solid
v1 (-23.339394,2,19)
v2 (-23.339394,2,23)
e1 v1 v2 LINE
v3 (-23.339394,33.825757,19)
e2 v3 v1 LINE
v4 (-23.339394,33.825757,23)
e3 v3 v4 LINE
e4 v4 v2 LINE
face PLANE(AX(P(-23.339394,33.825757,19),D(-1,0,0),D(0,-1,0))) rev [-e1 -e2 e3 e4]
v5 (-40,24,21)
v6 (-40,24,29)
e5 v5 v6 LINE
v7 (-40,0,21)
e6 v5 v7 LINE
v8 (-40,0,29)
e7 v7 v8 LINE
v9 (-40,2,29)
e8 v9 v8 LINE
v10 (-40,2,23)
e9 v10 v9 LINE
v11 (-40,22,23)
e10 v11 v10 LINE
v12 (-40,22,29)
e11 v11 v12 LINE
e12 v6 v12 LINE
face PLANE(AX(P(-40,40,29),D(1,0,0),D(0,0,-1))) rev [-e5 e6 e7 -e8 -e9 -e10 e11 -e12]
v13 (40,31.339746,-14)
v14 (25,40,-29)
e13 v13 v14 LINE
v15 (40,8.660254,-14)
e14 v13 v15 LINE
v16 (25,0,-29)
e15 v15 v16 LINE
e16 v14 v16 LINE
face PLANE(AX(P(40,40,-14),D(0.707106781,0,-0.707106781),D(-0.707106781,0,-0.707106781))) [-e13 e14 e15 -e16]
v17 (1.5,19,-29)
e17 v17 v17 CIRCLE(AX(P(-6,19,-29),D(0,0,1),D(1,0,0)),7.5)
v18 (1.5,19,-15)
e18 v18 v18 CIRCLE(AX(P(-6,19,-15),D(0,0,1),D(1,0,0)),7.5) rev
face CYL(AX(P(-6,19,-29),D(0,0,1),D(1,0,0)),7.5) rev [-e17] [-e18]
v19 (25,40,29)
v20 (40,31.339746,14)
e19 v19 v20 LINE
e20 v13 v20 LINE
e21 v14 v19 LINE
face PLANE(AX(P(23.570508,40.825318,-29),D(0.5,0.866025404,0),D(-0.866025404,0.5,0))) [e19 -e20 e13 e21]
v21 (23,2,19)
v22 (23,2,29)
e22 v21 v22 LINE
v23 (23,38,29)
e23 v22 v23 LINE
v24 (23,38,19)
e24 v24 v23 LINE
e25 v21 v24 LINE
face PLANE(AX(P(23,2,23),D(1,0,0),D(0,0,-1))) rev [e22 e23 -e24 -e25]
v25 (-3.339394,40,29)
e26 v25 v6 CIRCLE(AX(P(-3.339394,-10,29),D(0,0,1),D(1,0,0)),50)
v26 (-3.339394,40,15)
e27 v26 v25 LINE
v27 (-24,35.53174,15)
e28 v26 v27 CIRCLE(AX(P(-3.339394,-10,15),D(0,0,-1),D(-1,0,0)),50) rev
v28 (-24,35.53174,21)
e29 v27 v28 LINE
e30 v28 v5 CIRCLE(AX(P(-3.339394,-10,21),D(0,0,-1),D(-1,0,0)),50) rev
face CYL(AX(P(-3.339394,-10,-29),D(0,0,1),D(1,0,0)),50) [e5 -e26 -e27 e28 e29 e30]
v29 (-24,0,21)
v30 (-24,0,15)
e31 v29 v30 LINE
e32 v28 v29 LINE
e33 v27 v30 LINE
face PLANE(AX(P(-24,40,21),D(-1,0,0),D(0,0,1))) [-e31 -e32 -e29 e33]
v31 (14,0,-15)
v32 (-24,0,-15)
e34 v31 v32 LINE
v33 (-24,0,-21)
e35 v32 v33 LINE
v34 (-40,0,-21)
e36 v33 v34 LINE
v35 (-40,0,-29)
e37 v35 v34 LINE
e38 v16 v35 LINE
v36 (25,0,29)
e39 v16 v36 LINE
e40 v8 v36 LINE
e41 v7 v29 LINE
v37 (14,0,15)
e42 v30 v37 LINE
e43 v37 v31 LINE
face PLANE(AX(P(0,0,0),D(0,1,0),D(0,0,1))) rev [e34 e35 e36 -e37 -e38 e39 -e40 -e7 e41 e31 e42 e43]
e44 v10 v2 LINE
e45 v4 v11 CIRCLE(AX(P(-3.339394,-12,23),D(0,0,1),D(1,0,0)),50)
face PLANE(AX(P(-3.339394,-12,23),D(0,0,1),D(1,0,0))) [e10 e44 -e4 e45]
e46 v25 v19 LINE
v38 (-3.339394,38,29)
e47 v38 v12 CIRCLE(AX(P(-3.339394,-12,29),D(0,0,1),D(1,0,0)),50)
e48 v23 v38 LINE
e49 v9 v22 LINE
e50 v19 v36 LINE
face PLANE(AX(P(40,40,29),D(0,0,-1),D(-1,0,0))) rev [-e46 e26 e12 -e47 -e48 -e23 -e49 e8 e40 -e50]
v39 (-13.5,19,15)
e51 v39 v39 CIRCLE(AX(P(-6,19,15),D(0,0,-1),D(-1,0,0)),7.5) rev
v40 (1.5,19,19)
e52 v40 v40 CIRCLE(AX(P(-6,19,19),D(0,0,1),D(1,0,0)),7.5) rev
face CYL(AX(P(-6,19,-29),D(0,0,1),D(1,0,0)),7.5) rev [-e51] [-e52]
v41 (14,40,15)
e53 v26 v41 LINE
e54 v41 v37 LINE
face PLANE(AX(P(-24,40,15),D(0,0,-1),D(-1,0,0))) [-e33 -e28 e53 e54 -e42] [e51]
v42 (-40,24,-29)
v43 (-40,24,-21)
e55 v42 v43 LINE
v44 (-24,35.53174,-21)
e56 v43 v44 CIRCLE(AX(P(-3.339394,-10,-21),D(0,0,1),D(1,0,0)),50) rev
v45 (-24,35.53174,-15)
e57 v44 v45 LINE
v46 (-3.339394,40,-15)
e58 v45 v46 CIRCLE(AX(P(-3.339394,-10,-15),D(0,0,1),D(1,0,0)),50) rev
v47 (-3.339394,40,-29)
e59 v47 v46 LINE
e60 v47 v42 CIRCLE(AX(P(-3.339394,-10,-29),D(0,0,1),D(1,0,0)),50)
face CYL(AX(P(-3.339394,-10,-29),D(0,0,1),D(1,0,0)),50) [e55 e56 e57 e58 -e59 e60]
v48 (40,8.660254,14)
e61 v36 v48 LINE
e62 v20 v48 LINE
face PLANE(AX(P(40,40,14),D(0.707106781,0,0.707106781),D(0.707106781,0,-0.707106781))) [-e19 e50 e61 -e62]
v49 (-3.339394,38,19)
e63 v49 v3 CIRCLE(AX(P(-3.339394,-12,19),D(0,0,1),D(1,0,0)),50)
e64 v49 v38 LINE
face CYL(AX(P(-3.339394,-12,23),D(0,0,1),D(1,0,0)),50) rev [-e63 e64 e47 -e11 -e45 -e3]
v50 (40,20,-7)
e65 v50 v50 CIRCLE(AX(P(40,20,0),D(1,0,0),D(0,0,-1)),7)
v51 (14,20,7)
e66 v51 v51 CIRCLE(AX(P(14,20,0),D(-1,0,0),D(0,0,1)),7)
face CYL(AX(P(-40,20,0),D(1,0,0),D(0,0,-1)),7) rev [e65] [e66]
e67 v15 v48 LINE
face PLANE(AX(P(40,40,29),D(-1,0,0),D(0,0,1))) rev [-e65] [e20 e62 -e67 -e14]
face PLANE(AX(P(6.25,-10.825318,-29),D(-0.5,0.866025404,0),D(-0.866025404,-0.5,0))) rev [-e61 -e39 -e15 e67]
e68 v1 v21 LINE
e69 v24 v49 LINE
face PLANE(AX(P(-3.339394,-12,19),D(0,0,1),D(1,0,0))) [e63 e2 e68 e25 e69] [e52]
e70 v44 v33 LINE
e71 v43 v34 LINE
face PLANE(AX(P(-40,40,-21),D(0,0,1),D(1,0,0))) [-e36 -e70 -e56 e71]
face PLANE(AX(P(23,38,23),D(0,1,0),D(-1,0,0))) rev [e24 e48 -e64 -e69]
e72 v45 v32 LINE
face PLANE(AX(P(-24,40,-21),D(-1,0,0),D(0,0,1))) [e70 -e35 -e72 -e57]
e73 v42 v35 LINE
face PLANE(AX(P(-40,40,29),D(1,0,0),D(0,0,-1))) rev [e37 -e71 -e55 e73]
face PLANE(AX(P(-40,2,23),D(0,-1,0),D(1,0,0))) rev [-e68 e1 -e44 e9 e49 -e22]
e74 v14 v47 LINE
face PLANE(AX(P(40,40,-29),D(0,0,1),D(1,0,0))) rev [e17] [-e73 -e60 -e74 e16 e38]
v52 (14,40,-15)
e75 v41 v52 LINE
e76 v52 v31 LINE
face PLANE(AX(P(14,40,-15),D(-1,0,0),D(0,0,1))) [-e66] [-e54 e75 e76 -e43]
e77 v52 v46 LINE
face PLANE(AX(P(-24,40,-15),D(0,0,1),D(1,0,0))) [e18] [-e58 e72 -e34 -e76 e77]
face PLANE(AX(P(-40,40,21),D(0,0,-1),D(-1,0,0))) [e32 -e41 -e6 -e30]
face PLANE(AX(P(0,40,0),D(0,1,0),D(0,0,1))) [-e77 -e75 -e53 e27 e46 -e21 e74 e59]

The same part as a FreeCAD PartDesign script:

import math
import FreeCAD as App
import Part
import Sketcher

V = App.Vector
Q = App.Units.Quantity


def add_polygon(sketch, points):
    """Adds a closed chain of lines whose ends are joined by coincident constraints."""
    first, n = sketch.GeometryCount, len(points)
    for a, b in zip(points, points[1:] + points[:1]):
        sketch.addGeometry(Part.LineSegment(App.Vector(*a, 0), App.Vector(*b, 0)), False)
    for i in range(n):
        sketch.addConstraint(Sketcher.Constraint("Coincident", first + i, 2, first + (i + 1) % n, 1))

doc = App.newDocument("Part")
body = doc.addObject("PartDesign::Body", "Body")

# Sketch on XZ plane
sketch1 = doc.addObject("Sketcher::SketchObject", "Sketch")
body.addObject(sketch1)
sketch1.AttachmentSupport = (doc.XZ_Plane, [""])
sketch1.MapMode = "FlatFace"
add_polygon(sketch1, [(-40, -29), (-40, 29), (40, 29), (40, -29)])  # lines 0-3
sketch1.addConstraint(Sketcher.Constraint("Vertical", 0))
sketch1.addConstraint(Sketcher.Constraint("Horizontal", 1))
sketch1.addConstraint(Sketcher.Constraint("Vertical", 2))
sketch1.addConstraint(Sketcher.Constraint("Horizontal", 3))
sketch1.addConstraint(Sketcher.Constraint("Symmetric", 0, 2, 2, 2, -1, 1))
sketch1.addConstraint(Sketcher.Constraint("DistanceX", 1, 1, 1, 2, Q("80 mm")))
sketch1.addConstraint(Sketcher.Constraint("DistanceY", 0, 1, 0, 2, Q("58 mm")))
pad1 = doc.addObject("PartDesign::Pad", "Pad")
body.addObject(pad1)
pad1.Profile = sketch1
pad1.Length = 40
pad1.Reversed = True

# Sketch on XY plane
sketch2 = doc.addObject("Sketcher::SketchObject", "Sketch001")
body.addObject(sketch2)
sketch2.AttachmentSupport = (doc.XY_Plane, [""])
sketch2.MapMode = "FlatFace"
sketch2.AttachmentOffset = App.Placement(V(0, 0, 29), App.Rotation())
add_polygon(sketch2, [(40, 40), (25, 40), (40, 31.339746)])  # lines 0-2
sketch2.addGeometry(Part.ArcOfCircle(Part.Circle(V(-3.339394, -10, 0), V(0, 0, 1), 50), math.radians(90), math.radians(137.156357)), False)  # 3
sketch2.addGeometry(Part.LineSegment(V(-3.339394, 40, 0), V(-40, 40, 0)), False)  # 4
sketch2.addGeometry(Part.LineSegment(V(-40, 40, 0), V(-40, 24, 0)), False)  # 5
add_polygon(sketch2, [(40, 0), (40, 8.660254), (25, 0)])  # lines 6-8
sketch2.addGeometry(Part.Circle(V(-6, 19, 0), V(0, 0, 1), 7.5), False)  # 9
sketch2.addConstraint(Sketcher.Constraint("Tangent", 3, 1, 4, 1))
sketch2.addConstraint(Sketcher.Constraint("Coincident", 4, 2, 5, 1))
sketch2.addConstraint(Sketcher.Constraint("Coincident", 5, 2, 3, 2))
sketch2.addConstraint(Sketcher.Constraint("Horizontal", 0))
sketch2.addConstraint(Sketcher.Constraint("Vertical", 2))
sketch2.addConstraint(Sketcher.Constraint("Horizontal", 4))
sketch2.addConstraint(Sketcher.Constraint("Vertical", 5))
sketch2.addConstraint(Sketcher.Constraint("Vertical", 6))
sketch2.addConstraint(Sketcher.Constraint("Horizontal", 8))
sketch2.addConstraint(Sketcher.Constraint("Symmetric", 2, 2, 4, 2, -2))
sketch2.addConstraint(Sketcher.Constraint("PointOnObject", 7, 2, -1))
sketch2.addConstraint(Sketcher.Constraint("Vertical", 2, 2, 6, 2))
sketch2.addConstraint(Sketcher.Constraint("Vertical", 0, 2, 7, 2))
sketch2.addConstraint(Sketcher.Constraint("Equal", 2, 6))
sketch2.addConstraint(Sketcher.Constraint("Diameter", 9, Q("15 mm")))
sketch2.addConstraint(Sketcher.Constraint("Radius", 3, Q("50 mm")))
sketch2.addConstraint(Sketcher.Constraint("DistanceX", 0, 2, 0, 1, Q("15 mm")))
sketch2.addConstraint(Sketcher.Constraint("DistanceY", 5, 2, 5, 1, Q("16 mm")))
sketch2.addConstraint(Sketcher.Constraint("Angle", 1, Q("-30 deg")))
sketch2.addConstraint(Sketcher.Constraint("DistanceY", 3, 3, -1, 1, Q("10 mm")))
sketch2.addConstraint(Sketcher.Constraint("DistanceX", 9, 3, -1, 1, Q("6 mm")))
sketch2.addConstraint(Sketcher.Constraint("DistanceY", -1, 1, 9, 3, Q("19 mm")))
sketch2.addConstraint(Sketcher.Constraint("DistanceX", -1, 1, 0, 2, Q("25 mm")))
pocket1 = doc.addObject("PartDesign::Pocket", "Pocket")
body.addObject(pocket1)
pocket1.Profile = sketch2
pocket1.Type = "ThroughAll"

# Sketch on XZ plane
sketch3 = doc.addObject("Sketcher::SketchObject", "Sketch002")
body.addObject(sketch3)
sketch3.AttachmentSupport = (doc.XZ_Plane, [""])
sketch3.MapMode = "FlatFace"
add_polygon(sketch3, [(40, -29), (25, -29), (40, -14)])  # lines 0-2
add_polygon(sketch3, [(40, 14), (25, 29), (40, 29)])  # lines 3-5
add_polygon(sketch3, [(-24, -21), (-40, -21), (-40, 21), (-24, 21), (-24, 15), (14, 15), (14, -15), (-24, -15)])  # lines 6-13
sketch3.addConstraint(Sketcher.Constraint("Horizontal", 0))
sketch3.addConstraint(Sketcher.Constraint("Vertical", 2))
sketch3.addConstraint(Sketcher.Constraint("Horizontal", 4))
sketch3.addConstraint(Sketcher.Constraint("Vertical", 5))
sketch3.addConstraint(Sketcher.Constraint("Horizontal", 6))
sketch3.addConstraint(Sketcher.Constraint("Vertical", 7))
sketch3.addConstraint(Sketcher.Constraint("Horizontal", 8))
sketch3.addConstraint(Sketcher.Constraint("Vertical", 9))
sketch3.addConstraint(Sketcher.Constraint("Horizontal", 10))
sketch3.addConstraint(Sketcher.Constraint("Vertical", 11))
sketch3.addConstraint(Sketcher.Constraint("Horizontal", 12))
sketch3.addConstraint(Sketcher.Constraint("Vertical", 13))
sketch3.addConstraint(Sketcher.Constraint("Symmetric", 0, 2, 3, 2, -1))
sketch3.addConstraint(Sketcher.Constraint("Symmetric", 1, 2, 5, 2, -1))
sketch3.addConstraint(Sketcher.Constraint("Symmetric", 9, 2, 12, 2, -1))
sketch3.addConstraint(Sketcher.Constraint("Perpendicular", 1, 3))
sketch3.addConstraint(Sketcher.Constraint("Equal", 9, 13))
sketch3.addConstraint(Sketcher.Constraint("DistanceX", 0, 2, 0, 1, Q("15 mm")))
sketch3.addConstraint(Sketcher.Constraint("DistanceX", 6, 2, 6, 1, Q("16 mm")))
sketch3.addConstraint(Sketcher.Constraint("DistanceX", 10, 1, 10, 2, Q("38 mm")))
sketch3.addConstraint(Sketcher.Constraint("DistanceY", 7, 1, 7, 2, Q("42 mm")))
sketch3.addConstraint(Sketcher.Constraint("DistanceY", 9, 2, 9, 1, Q("6 mm")))
sketch3.addConstraint(Sketcher.Constraint("DistanceX", -1, 1, 0, 2, Q("25 mm")))
sketch3.addConstraint(Sketcher.Constraint("DistanceY", 0, 2, -1, 1, Q("29 mm")))
sketch3.addConstraint(Sketcher.Constraint("DistanceX", 6, 2, -1, 1, Q("40 mm")))
pocket2 = doc.addObject("PartDesign::Pocket", "Pocket001")
body.addObject(pocket2)
pocket2.Profile = sketch3
pocket2.Type = "ThroughAll"

# Sketch on YZ plane
sketch4 = doc.addObject("Sketcher::SketchObject", "Sketch003")
body.addObject(sketch4)
sketch4.AttachmentSupport = (doc.YZ_Plane, [""])
sketch4.MapMode = "FlatFace"
sketch4.AttachmentOffset = App.Placement(V(0, 0, 40), App.Rotation())
sketch4.addGeometry(Part.Circle(V(20, 0, 0), V(0, 0, 1), 7), False)
sketch4.addConstraint(Sketcher.Constraint("PointOnObject", 0, 3, -1))
sketch4.addConstraint(Sketcher.Constraint("Diameter", 0, Q("14 mm")))
sketch4.addConstraint(Sketcher.Constraint("DistanceX", -1, 1, 0, 3, Q("20 mm")))
pocket3 = doc.addObject("PartDesign::Pocket", "Pocket002")
body.addObject(pocket3)
pocket3.Profile = sketch4
pocket3.Type = "ThroughAll"

# Sketch on XY plane
sketch5 = doc.addObject("Sketcher::SketchObject", "Sketch004")
body.addObject(sketch5)
sketch5.AttachmentSupport = (doc.XY_Plane, [""])
sketch5.MapMode = "FlatFace"
sketch5.AttachmentOffset = App.Placement(V(0, 0, 29), App.Rotation())
sketch5.addGeometry(Part.LineSegment(V(-40, 2, 0), V(23, 2, 0)), False)
sketch5.addGeometry(Part.LineSegment(V(23, 2, 0), V(23, 38, 0)), False)
sketch5.addGeometry(Part.LineSegment(V(23, 38, 0), V(-3.339394, 38, 0)), False)
sketch5.addGeometry(Part.ArcOfCircle(Part.Circle(V(-3.339394, -12, 0), V(0, 0, 1), 50), math.radians(90), math.radians(137.156357)), False)
sketch5.addGeometry(Part.LineSegment(V(-40, 22, 0), V(-40, 2, 0)), False)
sketch5.addConstraint(Sketcher.Constraint("Coincident", 0, 2, 1, 1))
sketch5.addConstraint(Sketcher.Constraint("Coincident", 1, 2, 2, 1))
sketch5.addConstraint(Sketcher.Constraint("Tangent", 2, 2, 3, 1))
sketch5.addConstraint(Sketcher.Constraint("Coincident", 3, 2, 4, 1))
sketch5.addConstraint(Sketcher.Constraint("Coincident", 4, 2, 0, 1))
sketch5.addConstraint(Sketcher.Constraint("Horizontal", 0))
sketch5.addConstraint(Sketcher.Constraint("Vertical", 1))
sketch5.addConstraint(Sketcher.Constraint("Horizontal", 2))
sketch5.addConstraint(Sketcher.Constraint("Vertical", 4))
sketch5.addConstraint(Sketcher.Constraint("Radius", 3, Q("50 mm")))
sketch5.addConstraint(Sketcher.Constraint("DistanceX", 0, 1, 0, 2, Q("63 mm")))
sketch5.addConstraint(Sketcher.Constraint("DistanceY", 1, 1, 1, 2, Q("36 mm")))
sketch5.addConstraint(Sketcher.Constraint("DistanceY", 4, 2, 4, 1, Q("20 mm")))
sketch5.addConstraint(Sketcher.Constraint("DistanceY", 3, 3, -1, 1, Q("12 mm")))
sketch5.addConstraint(Sketcher.Constraint("DistanceX", -1, 1, 0, 2, Q("23 mm")))
pocket4 = doc.addObject("PartDesign::Pocket", "Pocket003")
body.addObject(pocket4)
pocket4.Profile = sketch5
pocket4.Length = 6

# Sketch on XY plane
sketch6 = doc.addObject("Sketcher::SketchObject", "Sketch005")
body.addObject(sketch6)
sketch6.AttachmentSupport = (doc.XY_Plane, [""])
sketch6.MapMode = "FlatFace"
sketch6.AttachmentOffset = App.Placement(V(0, 0, 23), App.Rotation())
sketch6.addGeometry(Part.LineSegment(V(-23.339394, 33.825757, 0), V(-23.339394, 2, 0)), False)
sketch6.addGeometry(Part.LineSegment(V(-23.339394, 2, 0), V(23, 2, 0)), False)
sketch6.addGeometry(Part.LineSegment(V(23, 2, 0), V(23, 38, 0)), False)
sketch6.addGeometry(Part.LineSegment(V(23, 38, 0), V(-3.339394, 38, 0)), False)
sketch6.addGeometry(Part.ArcOfCircle(Part.Circle(V(-3.339394, -12, 0), V(0, 0, 1), 50), math.radians(90), math.radians(113.578178)), False)
sketch6.addConstraint(Sketcher.Constraint("Coincident", 0, 2, 1, 1))
sketch6.addConstraint(Sketcher.Constraint("Coincident", 1, 2, 2, 1))
sketch6.addConstraint(Sketcher.Constraint("Coincident", 2, 2, 3, 1))
sketch6.addConstraint(Sketcher.Constraint("Tangent", 3, 2, 4, 1))
sketch6.addConstraint(Sketcher.Constraint("Coincident", 4, 2, 0, 1))
sketch6.addConstraint(Sketcher.Constraint("Vertical", 0))
sketch6.addConstraint(Sketcher.Constraint("Horizontal", 1))
sketch6.addConstraint(Sketcher.Constraint("Vertical", 2))
sketch6.addConstraint(Sketcher.Constraint("Horizontal", 3))
sketch6.addConstraint(Sketcher.Constraint("Radius", 4, Q("50 mm")))
sketch6.addConstraint(Sketcher.Constraint("DistanceY", 2, 1, 2, 2, Q("36 mm")))
sketch6.addConstraint(Sketcher.Constraint("DistanceY", 4, 3, -1, 1, Q("12 mm")))
sketch6.addConstraint(Sketcher.Constraint("DistanceX", -1, 1, 1, 2, Q("23 mm")))
sketch6.addConstraint(Sketcher.Constraint("DistanceX", 0, 2, 4, 3, Q("20 mm")))
sketch6.addConstraint(Sketcher.Constraint("DistanceX", 1, 1, 1, 2, Q("46.339394 mm")))
pocket5 = doc.addObject("PartDesign::Pocket", "Pocket004")
body.addObject(pocket5)
pocket5.Profile = sketch6
pocket5.Length = 4

doc.recompute()
